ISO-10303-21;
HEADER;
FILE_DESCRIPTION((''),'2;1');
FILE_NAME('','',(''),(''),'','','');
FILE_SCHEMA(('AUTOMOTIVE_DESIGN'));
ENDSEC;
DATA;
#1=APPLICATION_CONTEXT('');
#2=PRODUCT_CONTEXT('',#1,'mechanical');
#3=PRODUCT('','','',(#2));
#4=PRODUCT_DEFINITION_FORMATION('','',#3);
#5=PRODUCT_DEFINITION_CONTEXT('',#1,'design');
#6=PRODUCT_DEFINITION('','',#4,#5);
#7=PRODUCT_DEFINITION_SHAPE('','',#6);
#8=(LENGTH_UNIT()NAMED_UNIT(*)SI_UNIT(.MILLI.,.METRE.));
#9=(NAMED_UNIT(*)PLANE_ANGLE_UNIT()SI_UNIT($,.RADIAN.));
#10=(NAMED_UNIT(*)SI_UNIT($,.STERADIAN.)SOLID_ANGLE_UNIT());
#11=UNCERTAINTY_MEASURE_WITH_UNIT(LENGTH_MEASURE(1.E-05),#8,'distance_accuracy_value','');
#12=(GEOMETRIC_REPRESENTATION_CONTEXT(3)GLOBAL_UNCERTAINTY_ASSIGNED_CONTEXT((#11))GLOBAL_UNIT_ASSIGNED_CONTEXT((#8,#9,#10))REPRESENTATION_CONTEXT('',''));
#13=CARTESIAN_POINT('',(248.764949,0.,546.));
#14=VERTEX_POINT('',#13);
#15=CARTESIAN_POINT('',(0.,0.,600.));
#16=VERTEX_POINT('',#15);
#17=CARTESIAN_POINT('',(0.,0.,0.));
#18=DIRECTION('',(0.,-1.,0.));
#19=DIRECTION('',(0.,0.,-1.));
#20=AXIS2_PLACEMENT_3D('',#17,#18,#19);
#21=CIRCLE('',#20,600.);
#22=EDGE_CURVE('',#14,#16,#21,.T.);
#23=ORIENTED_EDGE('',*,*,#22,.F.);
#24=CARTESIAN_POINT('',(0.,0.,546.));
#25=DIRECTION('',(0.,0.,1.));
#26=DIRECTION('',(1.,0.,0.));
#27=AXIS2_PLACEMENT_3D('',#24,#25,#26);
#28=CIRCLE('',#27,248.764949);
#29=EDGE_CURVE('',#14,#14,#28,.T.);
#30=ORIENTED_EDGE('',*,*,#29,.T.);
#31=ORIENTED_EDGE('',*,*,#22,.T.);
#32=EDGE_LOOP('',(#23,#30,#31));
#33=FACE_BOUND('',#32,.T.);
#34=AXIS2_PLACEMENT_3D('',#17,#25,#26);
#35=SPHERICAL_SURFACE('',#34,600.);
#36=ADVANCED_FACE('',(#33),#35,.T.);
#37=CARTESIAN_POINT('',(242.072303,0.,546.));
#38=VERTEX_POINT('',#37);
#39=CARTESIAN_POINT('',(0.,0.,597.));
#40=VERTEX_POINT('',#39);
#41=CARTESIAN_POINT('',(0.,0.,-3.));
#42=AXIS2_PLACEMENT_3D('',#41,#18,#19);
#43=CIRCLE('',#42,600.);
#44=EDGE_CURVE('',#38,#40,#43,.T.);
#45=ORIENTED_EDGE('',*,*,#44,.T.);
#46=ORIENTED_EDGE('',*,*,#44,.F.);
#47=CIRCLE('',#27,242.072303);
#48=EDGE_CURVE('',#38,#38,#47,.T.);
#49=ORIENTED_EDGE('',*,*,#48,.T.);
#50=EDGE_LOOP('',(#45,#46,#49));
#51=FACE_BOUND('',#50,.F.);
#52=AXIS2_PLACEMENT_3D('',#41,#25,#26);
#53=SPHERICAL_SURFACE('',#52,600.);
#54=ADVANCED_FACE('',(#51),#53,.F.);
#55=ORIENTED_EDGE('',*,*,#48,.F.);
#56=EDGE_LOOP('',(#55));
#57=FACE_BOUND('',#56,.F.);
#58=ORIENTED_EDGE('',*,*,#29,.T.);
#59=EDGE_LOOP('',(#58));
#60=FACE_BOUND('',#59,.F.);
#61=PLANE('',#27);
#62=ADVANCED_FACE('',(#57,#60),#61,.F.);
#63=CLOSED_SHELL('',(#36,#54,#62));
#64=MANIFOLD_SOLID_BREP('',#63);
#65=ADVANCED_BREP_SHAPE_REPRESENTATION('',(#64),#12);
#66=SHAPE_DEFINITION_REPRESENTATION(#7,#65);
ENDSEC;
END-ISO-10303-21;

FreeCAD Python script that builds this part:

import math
import FreeCAD as App
import Part
import Sketcher
Q = App.Units.Quantity

doc = App.newDocument("Part")
body = doc.addObject("PartDesign::Body", "Body")

# Sketch on XY plane
sketch1 = doc.addObject("Sketcher::SketchObject", "Sketch")
body.addObject(sketch1)
sketch1.AttachmentSupport = (doc.XY_Plane, [""])
sketch1.MapMode = "FlatFace"
sketch1.AttachmentOffset = App.Placement(App.Vector(0, 0, -654), App.Rotation())
sketch1.addGeometry(Part.Circle(App.Vector(0, 0, 0), App.Vector(0, 0, 1), 600), False)
sketch1.addConstraint([
    Sketcher.Constraint("Coincident", 0, 3, -1, 1),
    Sketcher.Constraint("Diameter", 0, Q("1200 mm")),
])
pad1 = doc.addObject("PartDesign::Pad", "Pad")
body.addObject(pad1)
pad1.Profile = sketch1
pad1.Length = 1200
body2 = doc.addObject("PartDesign::Body", "Body001")

# Sketch on XZ plane
sketch2 = doc.addObject("Sketcher::SketchObject", "Sketch001")
body2.addObject(sketch2)
sketch2.AttachmentSupport = (doc.getObject("XZ_Plane001"), [""])
sketch2.MapMode = "FlatFace"
sketch2.addGeometry([
    Part.ArcOfCircle(Part.Circle(App.Vector(0, 0, 0), App.Vector(0, 0, 1), 600), math.radians(-90), math.radians(90)),
    Part.LineSegment(App.Vector(0, 600, 0), App.Vector(0, -600, 0)),
], False)
sketch2.addConstraint([
    Sketcher.Constraint("Coincident", 0, 1, 1, 2),
    Sketcher.Constraint("Coincident", 1, 1, 0, 2),
    Sketcher.Constraint("Vertical", 1),
    Sketcher.Constraint("Coincident", 0, 3, -1, 1),
    Sketcher.Constraint("PointOnObject", 1, 1, -2),
    Sketcher.Constraint("Radius", 0, Q("600 mm")),
])
revolution = doc.addObject("PartDesign::Revolution", "Revolution")
body2.addObject(revolution)
revolution.Profile = sketch2
revolution.ReferenceAxis = (sketch2, ["V_Axis"])
revolution.Angle = 360
doc.recompute()

boolean = doc.addObject("PartDesign::Boolean", "Boolean")
body2.addObject(boolean)
boolean.Type = "Cut"
boolean.addObjects([body])
body3 = doc.addObject("PartDesign::Body", "Body002")
doc.recompute()

body2.Placement = App.Placement(App.Vector(0, 0, -3), App.Rotation(App.Vector(0, 0, 1), 0))
boolean2 = doc.addObject("PartDesign::Boolean", "Boolean001")
body3.addObject(boolean2)
boolean2.Type = "Fuse"
boolean2.addObjects([body2])
body4 = doc.addObject("PartDesign::Body", "Body003")

# Sketch on XY plane
sketch3 = doc.addObject("Sketcher::SketchObject", "Sketch002")
body4.addObject(sketch3)
sketch3.AttachmentSupport = (doc.getObject("XY_Plane003"), [""])
sketch3.MapMode = "FlatFace"
sketch3.AttachmentOffset = App.Placement(App.Vector(0, 0, -654), App.Rotation())
sketch3.addGeometry(Part.Circle(App.Vector(0, 0, 0), App.Vector(0, 0, 1), 600), False)
sketch3.addConstraint([
    Sketcher.Constraint("Coincident", 0, 3, -1, 1),
    Sketcher.Constraint("Diameter", 0, Q("1200 mm")),
])
pad2 = doc.addObject("PartDesign::Pad", "Pad001")
body4.addObject(pad2)
pad2.Profile = sketch3
pad2.Length = 1200
body5 = doc.addObject("PartDesign::Body", "Body004")

# Sketch on XZ plane
sketch4 = doc.addObject("Sketcher::SketchObject", "Sketch003")
body5.addObject(sketch4)
sketch4.AttachmentSupport = (doc.getObject("XZ_Plane004"), [""])
sketch4.MapMode = "FlatFace"
sketch4.addGeometry([
    Part.ArcOfCircle(Part.Circle(App.Vector(0, 0, 0), App.Vector(0, 0, 1), 600), math.radians(-90), math.radians(90)),
    Part.LineSegment(App.Vector(0, 600, 0), App.Vector(0, -600, 0)),
], False)
sketch4.addConstraint([
    Sketcher.Constraint("Coincident", 0, 1, 1, 2),
    Sketcher.Constraint("Coincident", 1, 1, 0, 2),
    Sketcher.Constraint("Vertical", 1),
    Sketcher.Constraint("Coincident", 0, 3, -1, 1),
    Sketcher.Constraint("PointOnObject", 1, 1, -2),
    Sketcher.Constraint("Radius", 0, Q("600 mm")),
])
revolution2 = doc.addObject("PartDesign::Revolution", "Revolution001")
body5.addObject(revolution2)
revolution2.Profile = sketch4
revolution2.ReferenceAxis = (sketch4, ["V_Axis"])
revolution2.Angle = 360
doc.recompute()

boolean3 = doc.addObject("PartDesign::Boolean", "Boolean002")
body5.addObject(boolean3)
boolean3.Type = "Cut"
boolean3.addObjects([body4])
doc.recompute()

boolean4 = doc.addObject("PartDesign::Boolean", "Boolean003")
body5.addObject(boolean4)
boolean4.Type = "Cut"
boolean4.addObjects([body3])

doc.recompute()
